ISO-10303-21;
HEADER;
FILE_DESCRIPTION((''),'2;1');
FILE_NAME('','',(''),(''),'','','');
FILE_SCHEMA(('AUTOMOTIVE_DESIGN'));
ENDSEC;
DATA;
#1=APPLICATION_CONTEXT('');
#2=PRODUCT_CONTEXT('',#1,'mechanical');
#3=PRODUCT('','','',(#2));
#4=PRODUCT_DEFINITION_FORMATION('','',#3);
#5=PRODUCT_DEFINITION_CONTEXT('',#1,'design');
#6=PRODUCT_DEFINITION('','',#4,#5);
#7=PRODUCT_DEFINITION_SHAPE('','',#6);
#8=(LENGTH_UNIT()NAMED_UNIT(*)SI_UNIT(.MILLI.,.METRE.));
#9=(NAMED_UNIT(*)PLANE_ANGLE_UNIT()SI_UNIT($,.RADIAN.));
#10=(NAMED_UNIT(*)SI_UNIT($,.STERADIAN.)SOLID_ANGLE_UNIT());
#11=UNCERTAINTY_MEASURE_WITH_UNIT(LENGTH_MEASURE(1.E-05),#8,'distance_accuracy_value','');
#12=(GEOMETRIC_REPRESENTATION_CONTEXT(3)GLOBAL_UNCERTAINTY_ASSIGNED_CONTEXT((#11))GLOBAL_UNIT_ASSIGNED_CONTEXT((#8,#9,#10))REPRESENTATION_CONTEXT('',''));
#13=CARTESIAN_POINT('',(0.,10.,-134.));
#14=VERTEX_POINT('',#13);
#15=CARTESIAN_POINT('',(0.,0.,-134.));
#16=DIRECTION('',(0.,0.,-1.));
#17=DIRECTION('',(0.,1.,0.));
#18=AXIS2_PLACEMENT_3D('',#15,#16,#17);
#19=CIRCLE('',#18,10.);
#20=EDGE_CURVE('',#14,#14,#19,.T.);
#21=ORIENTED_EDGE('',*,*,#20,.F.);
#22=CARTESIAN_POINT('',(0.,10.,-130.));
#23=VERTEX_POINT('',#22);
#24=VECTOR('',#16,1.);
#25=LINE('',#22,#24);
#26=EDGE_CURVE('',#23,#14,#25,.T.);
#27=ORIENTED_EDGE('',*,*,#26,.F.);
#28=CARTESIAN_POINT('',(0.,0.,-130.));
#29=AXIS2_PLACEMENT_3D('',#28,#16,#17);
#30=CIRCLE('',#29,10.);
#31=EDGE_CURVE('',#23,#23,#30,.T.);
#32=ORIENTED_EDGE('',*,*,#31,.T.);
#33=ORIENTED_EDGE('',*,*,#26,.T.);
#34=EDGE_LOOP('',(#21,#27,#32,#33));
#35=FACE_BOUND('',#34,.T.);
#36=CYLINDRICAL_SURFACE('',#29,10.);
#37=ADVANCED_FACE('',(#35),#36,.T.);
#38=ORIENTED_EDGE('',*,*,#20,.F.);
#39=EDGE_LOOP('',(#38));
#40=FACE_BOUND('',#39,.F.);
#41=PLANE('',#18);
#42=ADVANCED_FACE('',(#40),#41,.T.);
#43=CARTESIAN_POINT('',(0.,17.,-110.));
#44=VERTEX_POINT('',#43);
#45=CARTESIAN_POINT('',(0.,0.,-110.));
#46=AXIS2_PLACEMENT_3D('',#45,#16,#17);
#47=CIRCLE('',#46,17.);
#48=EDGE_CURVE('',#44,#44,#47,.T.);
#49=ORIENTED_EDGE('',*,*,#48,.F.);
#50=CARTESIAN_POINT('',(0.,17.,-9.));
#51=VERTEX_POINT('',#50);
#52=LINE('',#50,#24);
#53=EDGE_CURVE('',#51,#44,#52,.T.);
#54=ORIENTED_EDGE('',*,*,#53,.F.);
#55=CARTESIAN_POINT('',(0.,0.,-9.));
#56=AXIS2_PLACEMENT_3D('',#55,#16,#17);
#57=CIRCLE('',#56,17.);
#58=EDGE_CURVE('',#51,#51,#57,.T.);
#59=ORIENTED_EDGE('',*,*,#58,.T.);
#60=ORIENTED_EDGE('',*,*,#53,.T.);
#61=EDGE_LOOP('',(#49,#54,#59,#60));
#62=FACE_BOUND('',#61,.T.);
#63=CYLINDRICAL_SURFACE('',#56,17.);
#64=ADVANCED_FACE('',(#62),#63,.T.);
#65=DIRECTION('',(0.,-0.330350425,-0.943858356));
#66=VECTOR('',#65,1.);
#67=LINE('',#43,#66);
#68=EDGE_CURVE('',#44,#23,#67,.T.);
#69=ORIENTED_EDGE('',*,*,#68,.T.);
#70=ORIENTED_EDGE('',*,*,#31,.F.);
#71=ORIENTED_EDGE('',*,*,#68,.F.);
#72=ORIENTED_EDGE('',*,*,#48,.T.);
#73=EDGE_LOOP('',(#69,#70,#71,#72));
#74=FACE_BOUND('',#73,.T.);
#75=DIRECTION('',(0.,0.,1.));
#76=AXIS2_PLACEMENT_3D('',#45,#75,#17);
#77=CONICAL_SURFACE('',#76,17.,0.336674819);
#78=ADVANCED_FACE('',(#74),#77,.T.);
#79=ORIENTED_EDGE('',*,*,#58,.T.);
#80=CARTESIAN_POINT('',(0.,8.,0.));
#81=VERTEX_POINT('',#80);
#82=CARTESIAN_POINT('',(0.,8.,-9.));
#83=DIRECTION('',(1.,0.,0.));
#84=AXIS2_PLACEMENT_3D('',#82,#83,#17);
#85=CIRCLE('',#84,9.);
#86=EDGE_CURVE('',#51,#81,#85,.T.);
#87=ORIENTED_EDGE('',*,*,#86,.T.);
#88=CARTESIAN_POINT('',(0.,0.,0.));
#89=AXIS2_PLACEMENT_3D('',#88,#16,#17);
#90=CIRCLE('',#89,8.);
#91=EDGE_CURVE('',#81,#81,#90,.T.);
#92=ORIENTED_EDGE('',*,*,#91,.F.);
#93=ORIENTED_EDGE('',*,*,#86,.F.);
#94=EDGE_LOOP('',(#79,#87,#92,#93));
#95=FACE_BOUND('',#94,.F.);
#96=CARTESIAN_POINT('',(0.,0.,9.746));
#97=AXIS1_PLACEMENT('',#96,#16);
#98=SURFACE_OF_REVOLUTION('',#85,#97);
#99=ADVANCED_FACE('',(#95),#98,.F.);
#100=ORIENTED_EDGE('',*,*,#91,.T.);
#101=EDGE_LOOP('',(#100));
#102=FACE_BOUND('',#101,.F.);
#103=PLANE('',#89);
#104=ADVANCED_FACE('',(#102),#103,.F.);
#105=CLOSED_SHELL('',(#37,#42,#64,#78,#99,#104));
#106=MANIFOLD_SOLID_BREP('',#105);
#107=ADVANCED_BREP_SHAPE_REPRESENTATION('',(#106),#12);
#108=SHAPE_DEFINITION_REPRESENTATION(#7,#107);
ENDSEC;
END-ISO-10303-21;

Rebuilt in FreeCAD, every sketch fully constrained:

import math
import FreeCAD as App
import Part
import Sketcher

doc = App.newDocument("Part")
body = doc.addObject("PartDesign::Body", "Body")

# Sketch on YZ plane
sketch1 = body.newObject("Sketcher::SketchObject", "Sketch")
sketch1.AttachmentSupport = (doc.getObject("YZ_Plane"), [""])
sketch1.MapMode = "FlatFace"
sketch1.addGeometry(Part.LineSegment(App.Vector(8, 0, 0), App.Vector(0, 0, 0)), False)
sketch1.addGeometry(Part.LineSegment(App.Vector(0, 0, 0), App.Vector(0, -134, 0)), False)
sketch1.addGeometry(Part.LineSegment(App.Vector(0, -134, 0), App.Vector(10, -134, 0)), False)
sketch1.addGeometry(Part.LineSegment(App.Vector(10, -134, 0), App.Vector(10, -130, 0)), False)
sketch1.addGeometry(Part.LineSegment(App.Vector(10, -130, 0), App.Vector(17, -110, 0)), False)
sketch1.addGeometry(Part.LineSegment(App.Vector(17, -110, 0), App.Vector(17, -9, 0)), False)
sketch1.addGeometry(Part.ArcOfCircle(Part.Circle(App.Vector(8, -9, 0), App.Vector(0, 0, 1), 9), math.radians(0), math.radians(90)), False)
sketch1.addConstraint(Sketcher.Constraint("Coincident", 0, 2, 1, 1))
sketch1.addConstraint(Sketcher.Constraint("Coincident", 1, 2, 2, 1))
sketch1.addConstraint(Sketcher.Constraint("Coincident", 2, 2, 3, 1))
sketch1.addConstraint(Sketcher.Constraint("Coincident", 3, 2, 4, 1))
sketch1.addConstraint(Sketcher.Constraint("Coincident", 4, 2, 5, 1))
sketch1.addConstraint(Sketcher.Constraint("Tangent", 5, 2, 6, 1))
sketch1.addConstraint(Sketcher.Constraint("Tangent", 6, 2, 0, 1))
sketch1.addConstraint(Sketcher.Constraint("Horizontal", 0))
sketch1.addConstraint(Sketcher.Constraint("Vertical", 1))
sketch1.addConstraint(Sketcher.Constraint("Horizontal", 2))
sketch1.addConstraint(Sketcher.Constraint("Vertical", 3))
sketch1.addConstraint(Sketcher.Constraint("Vertical", 5))
sketch1.addConstraint(Sketcher.Constraint("Coincident", 0, 2, -1, 1))
sketch1.addConstraint(Sketcher.Constraint("Radius", 6, 9.0))
sketch1.addConstraint(Sketcher.Constraint("DistanceY", 3, 1, 3, 2, 4.0))
sketch1.addConstraint(Sketcher.Constraint("DistanceY", 3, 2, -1, 1, 130.0))
sketch1.addConstraint(Sketcher.Constraint("DistanceY", 3, 2, 4, 2, 20.0))
sketch1.addConstraint(Sketcher.Constraint("DistanceX", 0, 2, 0, 1, 8.0))
sketch1.addConstraint(Sketcher.Constraint("DistanceX", 2, 1, 2, 2, 10.0))
revolution = body.newObject("PartDesign::Revolution", "Revolution")
revolution.Profile = sketch1
revolution.ReferenceAxis = (sketch1, ["V_Axis"])
revolution.Angle = 360

doc.recompute()
